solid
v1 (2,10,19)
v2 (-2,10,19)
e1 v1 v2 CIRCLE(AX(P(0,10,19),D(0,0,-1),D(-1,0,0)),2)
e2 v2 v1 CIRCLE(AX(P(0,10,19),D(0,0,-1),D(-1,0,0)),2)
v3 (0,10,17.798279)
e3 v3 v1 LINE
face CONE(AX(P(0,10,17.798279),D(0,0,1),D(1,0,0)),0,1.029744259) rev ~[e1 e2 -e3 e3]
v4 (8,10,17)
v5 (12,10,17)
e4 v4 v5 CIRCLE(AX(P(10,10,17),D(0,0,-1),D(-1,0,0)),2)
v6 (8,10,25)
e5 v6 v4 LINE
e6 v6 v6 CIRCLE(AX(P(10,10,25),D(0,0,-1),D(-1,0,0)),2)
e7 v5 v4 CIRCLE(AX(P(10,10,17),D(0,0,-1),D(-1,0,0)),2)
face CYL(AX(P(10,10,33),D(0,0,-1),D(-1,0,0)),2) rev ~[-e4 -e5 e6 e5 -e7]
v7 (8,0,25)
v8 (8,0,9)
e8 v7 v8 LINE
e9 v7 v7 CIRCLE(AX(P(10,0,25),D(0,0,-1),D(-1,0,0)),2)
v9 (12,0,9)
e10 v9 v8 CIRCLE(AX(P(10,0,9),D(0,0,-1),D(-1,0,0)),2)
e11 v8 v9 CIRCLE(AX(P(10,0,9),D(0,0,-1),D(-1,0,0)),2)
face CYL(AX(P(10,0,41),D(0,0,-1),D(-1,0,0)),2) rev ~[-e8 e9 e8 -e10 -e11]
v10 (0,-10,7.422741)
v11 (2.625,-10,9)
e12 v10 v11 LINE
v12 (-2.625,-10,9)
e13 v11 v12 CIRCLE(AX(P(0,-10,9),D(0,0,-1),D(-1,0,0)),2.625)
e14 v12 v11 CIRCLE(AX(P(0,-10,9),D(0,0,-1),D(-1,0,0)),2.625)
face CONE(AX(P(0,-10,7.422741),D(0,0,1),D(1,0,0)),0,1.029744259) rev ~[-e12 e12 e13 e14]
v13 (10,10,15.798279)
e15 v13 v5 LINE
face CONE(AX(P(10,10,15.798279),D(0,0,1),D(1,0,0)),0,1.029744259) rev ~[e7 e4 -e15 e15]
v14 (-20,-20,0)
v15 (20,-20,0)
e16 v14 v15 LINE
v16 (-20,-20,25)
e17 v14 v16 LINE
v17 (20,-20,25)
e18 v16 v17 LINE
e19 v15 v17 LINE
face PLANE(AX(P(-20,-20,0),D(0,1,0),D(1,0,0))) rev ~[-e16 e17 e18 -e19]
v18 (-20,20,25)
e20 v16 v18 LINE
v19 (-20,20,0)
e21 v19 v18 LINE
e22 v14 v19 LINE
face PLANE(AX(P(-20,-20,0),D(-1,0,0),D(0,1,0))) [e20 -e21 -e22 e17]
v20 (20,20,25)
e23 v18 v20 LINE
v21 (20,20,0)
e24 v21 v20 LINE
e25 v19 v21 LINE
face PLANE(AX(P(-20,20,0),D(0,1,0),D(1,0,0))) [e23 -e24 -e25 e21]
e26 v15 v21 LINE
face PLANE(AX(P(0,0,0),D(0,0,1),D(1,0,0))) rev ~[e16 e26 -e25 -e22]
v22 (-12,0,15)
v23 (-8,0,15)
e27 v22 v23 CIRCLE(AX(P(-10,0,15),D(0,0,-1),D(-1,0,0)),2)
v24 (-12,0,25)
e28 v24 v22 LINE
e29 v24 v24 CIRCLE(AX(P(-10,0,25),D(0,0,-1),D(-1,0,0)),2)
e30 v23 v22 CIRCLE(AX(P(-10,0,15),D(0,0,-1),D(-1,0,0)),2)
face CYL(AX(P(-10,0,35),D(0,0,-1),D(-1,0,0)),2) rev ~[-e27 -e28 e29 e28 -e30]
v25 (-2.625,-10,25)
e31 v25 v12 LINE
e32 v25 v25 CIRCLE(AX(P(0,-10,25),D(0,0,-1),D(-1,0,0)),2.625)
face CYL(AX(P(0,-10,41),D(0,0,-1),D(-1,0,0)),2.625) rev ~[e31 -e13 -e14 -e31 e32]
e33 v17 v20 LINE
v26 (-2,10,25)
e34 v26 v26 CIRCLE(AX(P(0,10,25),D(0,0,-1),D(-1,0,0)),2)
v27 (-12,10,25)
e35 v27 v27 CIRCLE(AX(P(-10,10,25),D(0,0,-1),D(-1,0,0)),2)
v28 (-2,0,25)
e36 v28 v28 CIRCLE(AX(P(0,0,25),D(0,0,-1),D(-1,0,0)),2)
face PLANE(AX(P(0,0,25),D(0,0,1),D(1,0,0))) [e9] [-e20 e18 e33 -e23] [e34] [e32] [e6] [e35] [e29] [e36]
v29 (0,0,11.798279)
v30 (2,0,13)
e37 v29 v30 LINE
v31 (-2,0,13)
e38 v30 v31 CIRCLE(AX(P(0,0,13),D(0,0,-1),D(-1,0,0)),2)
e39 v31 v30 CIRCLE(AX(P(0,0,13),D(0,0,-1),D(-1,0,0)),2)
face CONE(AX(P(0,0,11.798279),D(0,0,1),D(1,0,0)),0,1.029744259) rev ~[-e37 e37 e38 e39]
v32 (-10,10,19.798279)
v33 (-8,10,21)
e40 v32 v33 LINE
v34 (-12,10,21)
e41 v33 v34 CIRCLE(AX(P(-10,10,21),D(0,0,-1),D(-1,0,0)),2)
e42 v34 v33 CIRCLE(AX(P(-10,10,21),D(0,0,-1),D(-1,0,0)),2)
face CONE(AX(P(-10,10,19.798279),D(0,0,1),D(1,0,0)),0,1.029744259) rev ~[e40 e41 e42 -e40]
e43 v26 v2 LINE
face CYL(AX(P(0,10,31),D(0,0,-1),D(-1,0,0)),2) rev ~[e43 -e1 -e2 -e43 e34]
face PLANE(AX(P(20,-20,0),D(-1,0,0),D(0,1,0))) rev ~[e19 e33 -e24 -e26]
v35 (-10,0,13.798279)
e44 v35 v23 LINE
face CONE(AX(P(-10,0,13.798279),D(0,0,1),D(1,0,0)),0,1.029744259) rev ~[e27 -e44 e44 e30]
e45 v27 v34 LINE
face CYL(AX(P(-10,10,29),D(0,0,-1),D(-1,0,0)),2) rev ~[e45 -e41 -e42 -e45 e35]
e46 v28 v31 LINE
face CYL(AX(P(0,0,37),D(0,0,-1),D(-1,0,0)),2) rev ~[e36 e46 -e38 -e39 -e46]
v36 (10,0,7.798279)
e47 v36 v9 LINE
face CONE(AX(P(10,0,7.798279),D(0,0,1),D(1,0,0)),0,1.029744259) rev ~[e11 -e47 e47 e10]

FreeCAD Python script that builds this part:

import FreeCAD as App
import Part
import Sketcher


def add_polygon(sketch, points):
    """Adds a closed chain of lines whose ends are joined by coincident constraints."""
    first, n = sketch.GeometryCount, len(points)
    for a, b in zip(points, points[1:] + points[:1]):
        sketch.addGeometry(Part.LineSegment(App.Vector(*a, 0), App.Vector(*b, 0)), False)
    for i in range(n):
        sketch.addConstraint(Sketcher.Constraint("Coincident", first + i, 2, first + (i + 1) % n, 1))

doc = App.newDocument("Part")
body = doc.addObject("PartDesign::Body", "Body")

sketch1 = body.newObject("Sketcher::SketchObject", "Sketch")
sketch1.AttachmentSupport = (doc.getObject("XY_Plane"), [""])
sketch1.MapMode = "FlatFace"
add_polygon(sketch1, [(-20, 20), (-20, -20), (20, -20), (20, 20)])
sketch1.addConstraint([
    Sketcher.Constraint("Vertical", 0),
    Sketcher.Constraint("Horizontal", 1),
    Sketcher.Constraint("Vertical", 2),
    Sketcher.Constraint("Horizontal", 3),
    Sketcher.Constraint("Symmetric", 0, 2, 2, 2, -1, 1),
    Sketcher.Constraint("Equal", 3, 0),
    Sketcher.Constraint("DistanceX", 1, 1, 1, 2, 40.0),
])
pad1 = body.newObject("PartDesign::Pad", "Pad")
pad1.Profile = sketch1
pad1.Length = 25

sketch2 = body.newObject("Sketcher::SketchObject", "Sketch001")
sketch2.AttachmentSupport = (doc.getObject("XY_Plane"), [""])
sketch2.MapMode = "FlatFace"
sketch2.AttachmentOffset = App.Placement(App.Vector(0, 0, 25), App.Rotation())
sketch2.addGeometry(Part.Circle(App.Vector(-10, 10, 0), App.Vector(0, 0, 1), 2), False)
sketch2.addConstraint([
    Sketcher.Constraint("Diameter", 0, 4.0),
    Sketcher.Constraint("DistanceX", 0, 3, -1, 1, 10.0),
    Sketcher.Constraint("DistanceY", -1, 1, 0, 3, 10.0),
])
doc.recompute()
hole = body.newObject("PartDesign::Hole", "Hole")
hole.Profile = sketch2
hole.ThreadType = "None"
hole.Diameter = 4
hole.DepthType = "Dimension"
hole.Depth = 4
hole.DrillPoint = "Angled"
hole.DrillPointAngle = 118

sketch3 = body.newObject("Sketcher::SketchObject", "Sketch002")
sketch3.AttachmentSupport = (doc.getObject("XY_Plane"), [""])
sketch3.MapMode = "FlatFace"
sketch3.AttachmentOffset = App.Placement(App.Vector(0, 0, 25), App.Rotation())
sketch3.addGeometry(Part.Circle(App.Vector(0, 10, 0), App.Vector(0, 0, 1), 2), False)
sketch3.addConstraint([
    Sketcher.Constraint("PointOnObject", 0, 3, -2),
    Sketcher.Constraint("Diameter", 0, 4.0),
    Sketcher.Constraint("DistanceY", -1, 1, 0, 3, 10.0),
])
doc.recompute()
hole2 = body.newObject("PartDesign::Hole", "Hole001")
hole2.Profile = sketch3
hole2.ThreadType = "None"
hole2.Diameter = 4
hole2.DepthType = "Dimension"
hole2.Depth = 6
hole2.DrillPoint = "Angled"
hole2.DrillPointAngle = 118

sketch4 = body.newObject("Sketcher::SketchObject", "Sketch003")
sketch4.AttachmentSupport = (doc.getObject("XY_Plane"), [""])
sketch4.MapMode = "FlatFace"
sketch4.AttachmentOffset = App.Placement(App.Vector(0, 0, 25), App.Rotation())
sketch4.addGeometry(Part.Circle(App.Vector(10, 10, 0), App.Vector(0, 0, 1), 2), False)
sketch4.addConstraint([
    Sketcher.Constraint("Diameter", 0, 4.0),
    Sketcher.Constraint("DistanceX", -1, 1, 0, 3, 10.0),
    Sketcher.Constraint("DistanceY", -1, 1, 0, 3, 10.0),
])
doc.recompute()
hole3 = body.newObject("PartDesign::Hole", "Hole002")
hole3.Profile = sketch4
hole3.ThreadType = "None"
hole3.Diameter = 4
hole3.DepthType = "Dimension"
hole3.Depth = 8
hole3.DrillPoint = "Angled"
hole3.DrillPointAngle = 118

sketch5 = body.newObject("Sketcher::SketchObject", "Sketch004")
sketch5.AttachmentSupport = (doc.getObject("XY_Plane"), [""])
sketch5.MapMode = "FlatFace"
sketch5.AttachmentOffset = App.Placement(App.Vector(0, 0, 25), App.Rotation())
sketch5.addGeometry(Part.Circle(App.Vector(-10, 0, 0), App.Vector(0, 0, 1), 2), False)
sketch5.addConstraint([
    Sketcher.Constraint("PointOnObject", 0, 3, -1),
    Sketcher.Constraint("Diameter", 0, 4.0),
    Sketcher.Constraint("DistanceX", 0, 3, -1, 1, 10.0),
])
doc.recompute()
hole4 = body.newObject("PartDesign::Hole", "Hole003")
hole4.Profile = sketch5
hole4.ThreadType = "None"
hole4.Diameter = 4
hole4.DepthType = "Dimension"
hole4.Depth = 10
hole4.DrillPoint = "Angled"
hole4.DrillPointAngle = 118

sketch6 = body.newObject("Sketcher::SketchObject", "Sketch005")
sketch6.AttachmentSupport = (doc.getObject("XY_Plane"), [""])
sketch6.MapMode = "FlatFace"
sketch6.AttachmentOffset = App.Placement(App.Vector(0, 0, 25), App.Rotation())
sketch6.addGeometry(Part.Circle(App.Vector(0, 0, 0), App.Vector(0, 0, 1), 2), False)
sketch6.addConstraint([
    Sketcher.Constraint("Coincident", 0, 3, -1, 1),
    Sketcher.Constraint("Diameter", 0, 4.0),
])
doc.recompute()
hole5 = body.newObject("PartDesign::Hole", "Hole004")
hole5.Profile = sketch6
hole5.ThreadType = "None"
hole5.Diameter = 4
hole5.DepthType = "Dimension"
hole5.Depth = 12
hole5.DrillPoint = "Angled"
hole5.DrillPointAngle = 118

sketch7 = body.newObject("Sketcher::SketchObject", "Sketch006")
sketch7.AttachmentSupport = (doc.getObject("XY_Plane"), [""])
sketch7.MapMode = "FlatFace"
sketch7.AttachmentOffset = App.Placement(App.Vector(0, 0, 25), App.Rotation())
sketch7.addGeometry(Part.Circle(App.Vector(10, 0, 0), App.Vector(0, 0, 1), 2), False)
sketch7.addConstraint([
    Sketcher.Constraint("PointOnObject", 0, 3, -1),
    Sketcher.Constraint("Diameter", 0, 4.0),
    Sketcher.Constraint("DistanceX", -1, 1, 0, 3, 10.0),
])
doc.recompute()
hole6 = body.newObject("PartDesign::Hole", "Hole005")
hole6.Profile = sketch7
hole6.ThreadType = "None"
hole6.Diameter = 4
hole6.DepthType = "Dimension"
hole6.Depth = 16
hole6.DrillPoint = "Angled"
hole6.DrillPointAngle = 118

sketch8 = body.newObject("Sketcher::SketchObject", "Sketch007")
sketch8.AttachmentSupport = (doc.getObject("XY_Plane"), [""])
sketch8.MapMode = "FlatFace"
sketch8.AttachmentOffset = App.Placement(App.Vector(0, 0, 25), App.Rotation())
sketch8.addGeometry(Part.Circle(App.Vector(0, -10, 0), App.Vector(0, 0, 1), 2.6), False)
sketch8.addConstraint([
    Sketcher.Constraint("PointOnObject", 0, 3, -2),
    Sketcher.Constraint("Diameter", 0, 5.25),
    Sketcher.Constraint("DistanceY", 0, 3, -1, 1, 10.0),
])
doc.recompute()
hole7 = body.newObject("PartDesign::Hole", "Hole006")
hole7.Profile = sketch8
hole7.ThreadType = "None"
hole7.Diameter = 5.25
hole7.DepthType = "Dimension"
hole7.Depth = 16
hole7.DrillPoint = "Angled"
hole7.DrillPointAngle = 118

doc.recompute()
